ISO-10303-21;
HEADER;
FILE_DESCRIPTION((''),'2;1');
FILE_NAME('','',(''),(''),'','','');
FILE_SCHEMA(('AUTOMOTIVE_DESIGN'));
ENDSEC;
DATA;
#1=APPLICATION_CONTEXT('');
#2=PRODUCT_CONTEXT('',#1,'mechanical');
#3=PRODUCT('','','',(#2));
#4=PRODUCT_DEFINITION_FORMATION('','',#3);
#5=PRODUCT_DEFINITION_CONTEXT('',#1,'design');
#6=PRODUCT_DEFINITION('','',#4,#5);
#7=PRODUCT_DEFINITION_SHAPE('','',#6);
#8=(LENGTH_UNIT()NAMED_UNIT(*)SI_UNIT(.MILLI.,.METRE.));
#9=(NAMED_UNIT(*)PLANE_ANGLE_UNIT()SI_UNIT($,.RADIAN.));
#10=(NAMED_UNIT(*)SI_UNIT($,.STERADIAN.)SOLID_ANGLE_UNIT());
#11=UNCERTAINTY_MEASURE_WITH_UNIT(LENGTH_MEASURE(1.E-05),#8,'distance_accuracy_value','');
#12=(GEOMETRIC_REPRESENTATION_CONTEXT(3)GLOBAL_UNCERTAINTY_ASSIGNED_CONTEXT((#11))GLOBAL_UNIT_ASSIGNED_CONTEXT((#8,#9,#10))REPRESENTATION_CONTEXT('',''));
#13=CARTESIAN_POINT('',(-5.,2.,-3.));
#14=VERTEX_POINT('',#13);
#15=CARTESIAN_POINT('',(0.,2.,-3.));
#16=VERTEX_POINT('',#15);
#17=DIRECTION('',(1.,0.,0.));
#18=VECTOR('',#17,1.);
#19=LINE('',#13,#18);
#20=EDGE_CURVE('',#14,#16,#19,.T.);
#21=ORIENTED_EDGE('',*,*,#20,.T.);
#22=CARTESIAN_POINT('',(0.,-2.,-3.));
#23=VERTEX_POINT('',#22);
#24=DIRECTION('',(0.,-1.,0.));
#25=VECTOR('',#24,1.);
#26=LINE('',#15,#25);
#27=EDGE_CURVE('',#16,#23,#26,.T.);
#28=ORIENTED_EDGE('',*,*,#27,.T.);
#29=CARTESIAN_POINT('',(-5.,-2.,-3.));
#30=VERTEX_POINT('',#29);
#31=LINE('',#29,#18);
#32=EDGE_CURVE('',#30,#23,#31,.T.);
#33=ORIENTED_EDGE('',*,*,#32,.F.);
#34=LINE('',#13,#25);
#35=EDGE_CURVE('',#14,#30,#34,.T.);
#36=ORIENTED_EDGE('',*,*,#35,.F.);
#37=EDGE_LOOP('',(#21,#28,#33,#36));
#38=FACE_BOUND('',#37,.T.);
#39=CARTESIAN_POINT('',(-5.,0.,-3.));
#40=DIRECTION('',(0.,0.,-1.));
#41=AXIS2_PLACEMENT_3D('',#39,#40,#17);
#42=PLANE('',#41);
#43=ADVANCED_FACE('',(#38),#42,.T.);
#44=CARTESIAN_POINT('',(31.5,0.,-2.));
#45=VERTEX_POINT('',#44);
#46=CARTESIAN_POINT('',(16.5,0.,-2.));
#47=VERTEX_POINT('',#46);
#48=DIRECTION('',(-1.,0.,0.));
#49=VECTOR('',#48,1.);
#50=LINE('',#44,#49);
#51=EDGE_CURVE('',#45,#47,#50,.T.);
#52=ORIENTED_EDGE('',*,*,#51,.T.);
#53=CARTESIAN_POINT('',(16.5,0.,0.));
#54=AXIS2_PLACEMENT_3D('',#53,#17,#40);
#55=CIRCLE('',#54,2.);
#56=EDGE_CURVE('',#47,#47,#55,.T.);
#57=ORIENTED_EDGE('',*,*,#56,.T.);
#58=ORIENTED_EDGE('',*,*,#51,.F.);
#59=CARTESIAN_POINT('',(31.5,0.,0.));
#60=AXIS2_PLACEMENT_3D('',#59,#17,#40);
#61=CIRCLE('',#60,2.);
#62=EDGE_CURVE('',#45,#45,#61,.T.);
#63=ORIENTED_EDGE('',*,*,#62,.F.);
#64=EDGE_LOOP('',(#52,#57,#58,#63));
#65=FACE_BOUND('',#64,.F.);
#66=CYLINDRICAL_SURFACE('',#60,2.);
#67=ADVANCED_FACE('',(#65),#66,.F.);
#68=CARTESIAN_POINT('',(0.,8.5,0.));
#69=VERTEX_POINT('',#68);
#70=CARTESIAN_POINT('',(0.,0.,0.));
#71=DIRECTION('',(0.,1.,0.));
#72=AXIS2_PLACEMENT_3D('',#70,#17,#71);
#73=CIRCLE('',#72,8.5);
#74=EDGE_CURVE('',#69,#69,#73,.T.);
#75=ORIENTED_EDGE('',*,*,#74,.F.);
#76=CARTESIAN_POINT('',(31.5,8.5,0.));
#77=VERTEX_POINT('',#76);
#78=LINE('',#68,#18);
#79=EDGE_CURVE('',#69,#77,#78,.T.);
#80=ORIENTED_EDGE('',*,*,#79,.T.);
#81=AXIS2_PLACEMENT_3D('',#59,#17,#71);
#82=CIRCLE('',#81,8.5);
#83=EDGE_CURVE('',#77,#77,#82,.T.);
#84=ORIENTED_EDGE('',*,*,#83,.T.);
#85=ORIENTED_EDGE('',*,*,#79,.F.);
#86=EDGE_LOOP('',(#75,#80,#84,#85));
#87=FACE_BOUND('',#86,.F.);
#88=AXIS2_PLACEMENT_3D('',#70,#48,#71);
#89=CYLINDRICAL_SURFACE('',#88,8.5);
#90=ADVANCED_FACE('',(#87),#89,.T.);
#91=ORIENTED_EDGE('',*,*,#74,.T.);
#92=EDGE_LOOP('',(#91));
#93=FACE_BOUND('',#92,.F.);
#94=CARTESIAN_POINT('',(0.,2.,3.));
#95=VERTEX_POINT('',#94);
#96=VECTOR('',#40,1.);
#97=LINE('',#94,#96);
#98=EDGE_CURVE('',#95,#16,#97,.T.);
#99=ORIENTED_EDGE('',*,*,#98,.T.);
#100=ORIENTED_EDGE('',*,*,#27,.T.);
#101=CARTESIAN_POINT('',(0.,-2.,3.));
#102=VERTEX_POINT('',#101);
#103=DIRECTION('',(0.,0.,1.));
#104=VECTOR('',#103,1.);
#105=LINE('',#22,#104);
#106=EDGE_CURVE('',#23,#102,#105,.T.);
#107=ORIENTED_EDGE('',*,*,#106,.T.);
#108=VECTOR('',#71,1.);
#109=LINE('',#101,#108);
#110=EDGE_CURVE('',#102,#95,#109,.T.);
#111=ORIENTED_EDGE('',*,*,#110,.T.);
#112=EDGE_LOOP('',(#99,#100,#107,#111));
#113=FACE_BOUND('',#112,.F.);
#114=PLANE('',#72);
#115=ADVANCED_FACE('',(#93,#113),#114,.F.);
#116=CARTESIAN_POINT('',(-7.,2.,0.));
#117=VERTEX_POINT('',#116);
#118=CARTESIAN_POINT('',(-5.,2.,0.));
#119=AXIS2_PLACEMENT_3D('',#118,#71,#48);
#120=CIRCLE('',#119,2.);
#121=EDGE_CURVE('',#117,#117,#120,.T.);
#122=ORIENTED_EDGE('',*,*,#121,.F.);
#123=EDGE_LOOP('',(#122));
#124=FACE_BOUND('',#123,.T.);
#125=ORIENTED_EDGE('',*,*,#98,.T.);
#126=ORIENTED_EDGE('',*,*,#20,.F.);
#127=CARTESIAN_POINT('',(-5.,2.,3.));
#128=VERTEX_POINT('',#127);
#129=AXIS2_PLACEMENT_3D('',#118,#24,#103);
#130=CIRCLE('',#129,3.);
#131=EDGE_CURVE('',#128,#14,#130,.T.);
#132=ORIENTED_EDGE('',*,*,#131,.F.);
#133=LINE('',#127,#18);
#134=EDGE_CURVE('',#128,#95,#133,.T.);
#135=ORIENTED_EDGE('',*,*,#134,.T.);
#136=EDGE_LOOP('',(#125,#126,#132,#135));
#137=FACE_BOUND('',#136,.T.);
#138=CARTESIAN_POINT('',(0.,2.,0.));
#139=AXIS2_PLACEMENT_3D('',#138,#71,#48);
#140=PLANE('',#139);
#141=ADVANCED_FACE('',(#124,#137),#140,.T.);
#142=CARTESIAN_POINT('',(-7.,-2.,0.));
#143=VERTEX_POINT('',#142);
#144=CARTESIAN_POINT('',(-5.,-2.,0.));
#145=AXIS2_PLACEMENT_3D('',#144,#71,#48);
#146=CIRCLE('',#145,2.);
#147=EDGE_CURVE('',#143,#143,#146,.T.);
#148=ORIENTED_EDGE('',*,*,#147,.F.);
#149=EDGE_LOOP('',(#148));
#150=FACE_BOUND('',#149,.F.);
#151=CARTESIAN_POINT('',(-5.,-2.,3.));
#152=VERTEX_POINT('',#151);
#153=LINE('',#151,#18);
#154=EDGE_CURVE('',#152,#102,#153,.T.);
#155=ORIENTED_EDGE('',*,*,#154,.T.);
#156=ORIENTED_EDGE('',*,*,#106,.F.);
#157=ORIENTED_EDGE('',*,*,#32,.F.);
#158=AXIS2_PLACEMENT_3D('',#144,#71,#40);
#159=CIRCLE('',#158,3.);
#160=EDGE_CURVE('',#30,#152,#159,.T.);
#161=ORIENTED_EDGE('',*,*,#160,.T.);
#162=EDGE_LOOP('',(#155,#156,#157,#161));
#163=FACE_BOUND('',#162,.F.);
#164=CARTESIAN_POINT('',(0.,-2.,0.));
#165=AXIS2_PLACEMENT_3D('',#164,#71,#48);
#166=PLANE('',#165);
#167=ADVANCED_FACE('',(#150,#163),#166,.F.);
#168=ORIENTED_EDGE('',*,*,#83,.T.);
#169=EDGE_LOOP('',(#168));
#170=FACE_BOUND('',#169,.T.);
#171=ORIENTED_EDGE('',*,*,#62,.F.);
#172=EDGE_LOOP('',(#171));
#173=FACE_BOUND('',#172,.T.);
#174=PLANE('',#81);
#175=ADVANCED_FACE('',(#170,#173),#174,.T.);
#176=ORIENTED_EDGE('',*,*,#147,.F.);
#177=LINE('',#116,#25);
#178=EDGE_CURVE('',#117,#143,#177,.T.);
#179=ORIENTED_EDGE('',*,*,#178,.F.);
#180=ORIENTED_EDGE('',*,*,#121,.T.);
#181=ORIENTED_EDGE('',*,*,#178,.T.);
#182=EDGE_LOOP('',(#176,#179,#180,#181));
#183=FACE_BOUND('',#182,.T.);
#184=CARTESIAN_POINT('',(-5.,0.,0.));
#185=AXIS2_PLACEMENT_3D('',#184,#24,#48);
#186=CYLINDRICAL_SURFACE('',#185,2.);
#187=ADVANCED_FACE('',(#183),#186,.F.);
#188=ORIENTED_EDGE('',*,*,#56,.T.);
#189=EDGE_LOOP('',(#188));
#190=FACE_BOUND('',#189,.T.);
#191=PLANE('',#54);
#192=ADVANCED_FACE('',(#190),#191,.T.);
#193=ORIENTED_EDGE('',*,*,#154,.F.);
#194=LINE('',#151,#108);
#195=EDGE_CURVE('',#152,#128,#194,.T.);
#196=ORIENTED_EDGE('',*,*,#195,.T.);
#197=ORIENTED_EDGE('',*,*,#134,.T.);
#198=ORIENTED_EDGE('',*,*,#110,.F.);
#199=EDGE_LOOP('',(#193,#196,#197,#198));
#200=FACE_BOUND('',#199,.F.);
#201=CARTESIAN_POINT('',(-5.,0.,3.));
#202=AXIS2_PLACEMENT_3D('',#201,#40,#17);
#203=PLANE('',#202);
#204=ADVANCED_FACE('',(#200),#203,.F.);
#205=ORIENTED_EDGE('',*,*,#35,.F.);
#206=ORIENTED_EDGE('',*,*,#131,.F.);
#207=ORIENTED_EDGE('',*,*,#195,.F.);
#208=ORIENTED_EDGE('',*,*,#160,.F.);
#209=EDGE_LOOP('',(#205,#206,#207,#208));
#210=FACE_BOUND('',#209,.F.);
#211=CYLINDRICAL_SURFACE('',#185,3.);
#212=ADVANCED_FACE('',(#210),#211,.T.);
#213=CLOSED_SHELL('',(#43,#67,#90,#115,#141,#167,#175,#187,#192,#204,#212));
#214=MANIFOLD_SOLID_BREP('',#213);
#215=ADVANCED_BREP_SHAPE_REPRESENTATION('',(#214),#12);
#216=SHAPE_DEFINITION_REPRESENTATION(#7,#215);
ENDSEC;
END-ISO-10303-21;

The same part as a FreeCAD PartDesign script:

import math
import FreeCAD as App
import Part
import Sketcher
from FreeCAD import Vector

doc = App.newDocument("Part")
body = doc.addObject("PartDesign::Body", "Body")

# Sketch on YZ plane
sketch1 = body.newObject("Sketcher::SketchObject", "Sketch")
sketch1.AttachmentSupport = (doc.getObject("YZ_Plane"), [""])
sketch1.MapMode = "FlatFace"
sketch1.addGeometry(Part.Circle(Vector(0, 0, 0), Vector(0, 0, 1), 8), False)
sketch1.addConstraint([
    Sketcher.Constraint("Coincident", 0, 3, -1, 1),
    Sketcher.Constraint("Diameter", 0, 17.0),
])
pad1 = body.newObject("PartDesign::Pad", "Pad")
pad1.Profile = sketch1
pad1.Length = 31.5

# Sketch on XZ plane
sketch2 = body.newObject("Sketcher::SketchObject", "Sketch001")
sketch2.AttachmentSupport = (doc.getObject("XZ_Plane"), [""])
sketch2.MapMode = "FlatFace"
sketch2.addGeometry([
    Part.ArcOfCircle(Part.Circle(Vector(-5, 0, 0), Vector(0, 0, 1), 3), math.radians(90), math.radians(270)),  # 0
    Part.LineSegment(Vector(-5, 3, 0), Vector(0, 3, 0)),  # 1
    Part.LineSegment(Vector(0, 3, 0), Vector(0, -3, 0)),  # 2
    Part.LineSegment(Vector(0, -3, 0), Vector(-5, -3, 0)),  # 3
    Part.Circle(Vector(-5, 0, 0), Vector(0, 0, 1), 2),  # 4
], False)
sketch2.addConstraint([
    Sketcher.Constraint("Tangent", 0, 1, 1, 1),
    Sketcher.Constraint("Coincident", 1, 2, 2, 1),
    Sketcher.Constraint("Coincident", 2, 2, 3, 1),
    Sketcher.Constraint("Tangent", 3, 2, 0, 2),
    Sketcher.Constraint("Horizontal", 1),
    Sketcher.Constraint("Vertical", 2),
    Sketcher.Constraint("Horizontal", 3),
    Sketcher.Constraint("Coincident", 4, 3, 0, 3),
    Sketcher.Constraint("Symmetric", 1, 2, 2, 2, -1, 1),
    Sketcher.Constraint("Diameter", 4, 4.0),
    Sketcher.Constraint("Radius", 0, 3.0),
    Sketcher.Constraint("DistanceX", 1, 1, 1, 2, 5.0),
])
pad2 = body.newObject("PartDesign::Pad", "Pad001")
pad2.Profile = sketch2
pad2.Length = 4
pad2.Midplane = True

# Sketch on YZ plane
sketch3 = body.newObject("Sketcher::SketchObject", "Sketch002")
sketch3.AttachmentSupport = (doc.getObject("YZ_Plane"), [""])
sketch3.MapMode = "FlatFace"
sketch3.AttachmentOffset = App.Placement(Vector(0, 0, 31.5), App.Rotation())
sketch3.addGeometry(Part.Circle(Vector(0, 0, 0), Vector(0, 0, 1), 2), False)
sketch3.addConstraint([
    Sketcher.Constraint("Coincident", 0, 3, -1, 1),
    Sketcher.Constraint("Diameter", 0, 4.0),
])
pocket1 = body.newObject("PartDesign::Pocket", "Pocket")
pocket1.Profile = sketch3
pocket1.Length = 15

doc.recompute()
